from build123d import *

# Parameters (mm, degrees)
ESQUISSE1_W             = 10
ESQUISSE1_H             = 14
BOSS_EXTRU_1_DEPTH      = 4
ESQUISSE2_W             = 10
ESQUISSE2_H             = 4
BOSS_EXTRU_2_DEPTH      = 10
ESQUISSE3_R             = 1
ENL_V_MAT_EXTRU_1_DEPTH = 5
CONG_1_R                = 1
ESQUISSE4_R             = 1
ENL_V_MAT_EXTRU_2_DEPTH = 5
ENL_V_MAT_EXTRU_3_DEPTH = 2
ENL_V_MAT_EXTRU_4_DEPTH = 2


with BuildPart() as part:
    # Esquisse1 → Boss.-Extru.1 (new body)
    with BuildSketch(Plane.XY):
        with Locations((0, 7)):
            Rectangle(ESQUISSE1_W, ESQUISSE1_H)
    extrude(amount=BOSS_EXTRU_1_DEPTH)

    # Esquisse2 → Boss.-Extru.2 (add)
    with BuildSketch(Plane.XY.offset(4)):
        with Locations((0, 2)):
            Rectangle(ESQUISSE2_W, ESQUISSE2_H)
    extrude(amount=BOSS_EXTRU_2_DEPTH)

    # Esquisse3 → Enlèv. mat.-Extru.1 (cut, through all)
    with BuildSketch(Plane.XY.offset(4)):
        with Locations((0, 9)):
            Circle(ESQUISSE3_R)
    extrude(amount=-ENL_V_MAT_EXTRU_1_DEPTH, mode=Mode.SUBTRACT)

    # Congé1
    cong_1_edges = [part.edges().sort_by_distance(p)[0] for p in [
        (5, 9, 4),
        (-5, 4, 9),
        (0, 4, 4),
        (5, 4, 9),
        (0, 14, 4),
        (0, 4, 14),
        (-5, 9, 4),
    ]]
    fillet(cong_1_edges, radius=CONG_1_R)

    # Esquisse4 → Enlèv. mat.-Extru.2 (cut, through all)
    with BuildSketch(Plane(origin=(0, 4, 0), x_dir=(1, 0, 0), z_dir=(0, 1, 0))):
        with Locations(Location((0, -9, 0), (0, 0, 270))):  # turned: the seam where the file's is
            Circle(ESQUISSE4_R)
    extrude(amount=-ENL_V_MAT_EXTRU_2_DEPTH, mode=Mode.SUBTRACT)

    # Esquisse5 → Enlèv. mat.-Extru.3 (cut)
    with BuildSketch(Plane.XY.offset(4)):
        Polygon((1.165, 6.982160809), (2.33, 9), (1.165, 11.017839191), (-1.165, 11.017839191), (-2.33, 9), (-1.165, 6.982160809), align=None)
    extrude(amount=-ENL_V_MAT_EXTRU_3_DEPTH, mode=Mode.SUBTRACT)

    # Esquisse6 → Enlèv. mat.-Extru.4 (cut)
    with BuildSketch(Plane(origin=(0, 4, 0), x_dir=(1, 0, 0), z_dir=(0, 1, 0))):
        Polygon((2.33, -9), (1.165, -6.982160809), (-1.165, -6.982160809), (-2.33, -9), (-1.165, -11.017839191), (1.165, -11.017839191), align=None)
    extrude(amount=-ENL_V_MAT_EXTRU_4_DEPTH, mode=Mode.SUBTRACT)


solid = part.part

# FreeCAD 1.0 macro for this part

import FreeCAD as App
import Part
import Sketcher
from FreeCAD import Vector
Q = App.Units.Quantity


def edges_at(feature, points):
    """Names of the edges that pass closest to the given points."""
    edges = feature.Shape.Edges
    near = lambda p: min(range(len(edges)), key=lambda i: edges[i].distToShape(Part.Vertex(*p))[0])
    return sorted({f"Edge{near(p) + 1}" for p in points})

doc = App.newDocument("Part")
body = doc.addObject("PartDesign::Body", "Body")

# Sketch on XY plane
sketch1 = doc.addObject("Sketcher::SketchObject", "Sketch")
body.addObject(sketch1)
sketch1.AttachmentSupport = (doc.XY_Plane, [""])
sketch1.MapMode = "FlatFace"
sketch1.addGeometry(Part.LineSegment(Vector(-5, 14, 0), Vector(-5, 0, 0)), False)
sketch1.addGeometry(Part.LineSegment(Vector(-5, 0, 0), Vector(5, 0, 0)), False)
sketch1.addGeometry(Part.LineSegment(Vector(5, 0, 0), Vector(5, 14, 0)), False)
sketch1.addGeometry(Part.LineSegment(Vector(5, 14, 0), Vector(-5, 14, 0)), False)
sketch1.addConstraint(Sketcher.Constraint("Coincident", 0, 2, 1, 1))
sketch1.addConstraint(Sketcher.Constraint("Coincident", 1, 2, 2, 1))
sketch1.addConstraint(Sketcher.Constraint("Coincident", 2, 2, 3, 1))
sketch1.addConstraint(Sketcher.Constraint("Coincident", 3, 2, 0, 1))
sketch1.addConstraint(Sketcher.Constraint("Vertical", 0))
sketch1.addConstraint(Sketcher.Constraint("Horizontal", 1))
sketch1.addConstraint(Sketcher.Constraint("Vertical", 2))
sketch1.addConstraint(Sketcher.Constraint("Horizontal", 3))
sketch1.addConstraint(Sketcher.Constraint("Symmetric", 0, 2, 1, 2, -1, 1))
sketch1.addConstraint(Sketcher.Constraint("DistanceX", 1, 1, 1, 2, Q("10 mm")))
sketch1.addConstraint(Sketcher.Constraint("DistanceY", 0, 2, 0, 1, Q("14 mm")))
pad1 = doc.addObject("PartDesign::Pad", "Pad")
body.addObject(pad1)
pad1.Profile = sketch1
pad1.Length = 4

# Sketch on XY plane
sketch2 = doc.addObject("Sketcher::SketchObject", "Sketch001")
body.addObject(sketch2)
sketch2.AttachmentSupport = (doc.XY_Plane, [""])
sketch2.MapMode = "FlatFace"
sketch2.AttachmentOffset = App.Placement(Vector(0, 0, 4), App.Rotation())
sketch2.addGeometry(Part.LineSegment(Vector(-5, 4, 0), Vector(-5, 0, 0)), False)
sketch2.addGeometry(Part.LineSegment(Vector(-5, 0, 0), Vector(5, 0, 0)), False)
sketch2.addGeometry(Part.LineSegment(Vector(5, 0, 0), Vector(5, 4, 0)), False)
sketch2.addGeometry(Part.LineSegment(Vector(5, 4, 0), Vector(-5, 4, 0)), False)
sketch2.addConstraint(Sketcher.Constraint("Coincident", 0, 2, 1, 1))
sketch2.addConstraint(Sketcher.Constraint("Coincident", 1, 2, 2, 1))
sketch2.addConstraint(Sketcher.Constraint("Coincident", 2, 2, 3, 1))
sketch2.addConstraint(Sketcher.Constraint("Coincident", 3, 2, 0, 1))
sketch2.addConstraint(Sketcher.Constraint("Vertical", 0))
sketch2.addConstraint(Sketcher.Constraint("Horizontal", 1))
sketch2.addConstraint(Sketcher.Constraint("Vertical", 2))
sketch2.addConstraint(Sketcher.Constraint("Horizontal", 3))
sketch2.addConstraint(Sketcher.Constraint("Symmetric", 0, 2, 1, 2, -1, 1))
sketch2.addConstraint(Sketcher.Constraint("DistanceX", 1, 1, 1, 2, Q("10 mm")))
sketch2.addConstraint(Sketcher.Constraint("DistanceY", 0, 2, 0, 1, Q("4 mm")))
pad2 = doc.addObject("PartDesign::Pad", "Pad001")
body.addObject(pad2)
pad2.Profile = sketch2
pad2.Length = 10

# Sketch on XY plane
sketch3 = doc.addObject("Sketcher::SketchObject", "Sketch002")
body.addObject(sketch3)
sketch3.AttachmentSupport = (doc.XY_Plane, [""])
sketch3.MapMode = "FlatFace"
sketch3.AttachmentOffset = App.Placement(Vector(0, 0, 4), App.Rotation())
sketch3.addGeometry(Part.Circle(Vector(0, 9, 0), Vector(0, 0, 1), 1), False)
sketch3.addConstraint(Sketcher.Constraint("PointOnObject", 0, 3, -2))
sketch3.addConstraint(Sketcher.Constraint("Diameter", 0, Q("2 mm")))
sketch3.addConstraint(Sketcher.Constraint("DistanceY", -1, 1, 0, 3, Q("9 mm")))
pocket1 = doc.addObject("PartDesign::Pocket", "Pocket")
body.addObject(pocket1)
pocket1.Profile = sketch3
pocket1.Type = "ThroughAll"
doc.recompute()

fillet = doc.addObject("PartDesign::Fillet", "Fillet")
body.addObject(fillet)
fillet.Base = (pocket1, edges_at(pocket1, [
    (5, 9, 4),
    (-5, 4, 9),
    (0, 4, 4),
    (5, 4, 9),
    (0, 14, 4),
    (0, 4, 14),
    (-5, 9, 4),
]))
fillet.Radius = 1

# Sketch on XZ plane
sketch4 = doc.addObject("Sketcher::SketchObject", "Sketch003")
body.addObject(sketch4)
sketch4.AttachmentSupport = (doc.XZ_Plane, [""])
sketch4.MapMode = "FlatFace"
sketch4.AttachmentOffset = App.Placement(Vector(0, 0, -4), App.Rotation())
sketch4.addGeometry(Part.Circle(Vector(0, 9, 0), Vector(0, 0, 1), 1), False)
sketch4.addConstraint(Sketcher.Constraint("PointOnObject", 0, 3, -2))
sketch4.addConstraint(Sketcher.Constraint("Diameter", 0, Q("2 mm")))
sketch4.addConstraint(Sketcher.Constraint("DistanceY", -1, 1, 0, 3, Q("9 mm")))
pocket2 = doc.addObject("PartDesign::Pocket", "Pocket001")
body.addObject(pocket2)
pocket2.Profile = sketch4
pocket2.Type = "ThroughAll"
pocket2.Reversed = True

# Sketch on XY plane
sketch5 = doc.addObject("Sketcher::SketchObject", "Sketch004")
body.addObject(sketch5)
sketch5.AttachmentSupport = (doc.XY_Plane, [""])
sketch5.MapMode = "FlatFace"
sketch5.AttachmentOffset = App.Placement(Vector(0, 0, 4), App.Rotation())
sketch5.addGeometry(Part.LineSegment(Vector(1.2, 7, 0), Vector(2.3, 9, 0)), False)
sketch5.addGeometry(Part.LineSegment(Vector(2.3, 9, 0), Vector(1.2, 11, 0)), False)
sketch5.addGeometry(Part.LineSegment(Vector(1.2, 11, 0), Vector(-1.2, 11, 0)), False)
sketch5.addGeometry(Part.LineSegment(Vector(-1.2, 11, 0), Vector(-2.3, 9, 0)), False)
sketch5.addGeometry(Part.LineSegment(Vector(-2.3, 9, 0), Vector(-1.2, 7, 0)), False)
sketch5.addGeometry(Part.LineSegment(Vector(-1.2, 7, 0), Vector(1.2, 7, 0)), False)
sketch5.addConstraint(Sketcher.Constraint("Coincident", 0, 2, 1, 1))
sketch5.addConstraint(Sketcher.Constraint("Coincident", 1, 2, 2, 1))
sketch5.addConstraint(Sketcher.Constraint("Coincident", 2, 2, 3, 1))
sketch5.addConstraint(Sketcher.Constraint("Coincident", 3, 2, 4, 1))
sketch5.addConstraint(Sketcher.Constraint("Coincident", 4, 2, 5, 1))
sketch5.addConstraint(Sketcher.Constraint("Coincident", 5, 2, 0, 1))
sketch5.addConstraint(Sketcher.Constraint("Horizontal", 2))
sketch5.addConstraint(Sketcher.Constraint("Horizontal", 5))
sketch5.addConstraint(Sketcher.Constraint("Symmetric", 0, 2, 3, 2, -2))
sketch5.addConstraint(Sketcher.Constraint("Parallel", 0, 3))
sketch5.addConstraint(Sketcher.Constraint("Parallel", 1, 4))
sketch5.addConstraint(Sketcher.Constraint("Vertical", 2, 2, 4, 2))
sketch5.addConstraint(Sketcher.Constraint("Vertical", 1, 2, 5, 2))
sketch5.addConstraint(Sketcher.Constraint("Angle", 0, Q("60 deg")))
sketch5.addConstraint(Sketcher.Constraint("DistanceY", -1, 1, 0, 2, Q("9 mm")))
sketch5.addConstraint(Sketcher.Constraint("DistanceX", 2, 2, 2, 1, Q("2.33 mm")))
sketch5.addConstraint(Sketcher.Constraint("Distance", 0, Q("2.33 mm")))
pocket3 = doc.addObject("PartDesign::Pocket", "Pocket002")
body.addObject(pocket3)
pocket3.Profile = sketch5
pocket3.Length = 2

# Sketch on XZ plane
sketch6 = doc.addObject("Sketcher::SketchObject", "Sketch005")
body.addObject(sketch6)
sketch6.AttachmentSupport = (doc.XZ_Plane, [""])
sketch6.MapMode = "FlatFace"
sketch6.AttachmentOffset = App.Placement(Vector(0, 0, -4), App.Rotation())
sketch6.addGeometry(Part.LineSegment(Vector(2.3, 9, 0), Vector(1.2, 7, 0)), False)
sketch6.addGeometry(Part.LineSegment(Vector(1.2, 7, 0), Vector(-1.2, 7, 0)), False)
sketch6.addGeometry(Part.LineSegment(Vector(-1.2, 7, 0), Vector(-2.3, 9, 0)), False)
sketch6.addGeometry(Part.LineSegment(Vector(-2.3, 9, 0), Vector(-1.2, 11, 0)), False)
sketch6.addGeometry(Part.LineSegment(Vector(-1.2, 11, 0), Vector(1.2, 11, 0)), False)
sketch6.addGeometry(Part.LineSegment(Vector(1.2, 11, 0), Vector(2.3, 9, 0)), False)
sketch6.addConstraint(Sketcher.Constraint("Coincident", 0, 2, 1, 1))
sketch6.addConstraint(Sketcher.Constraint("Coincident", 1, 2, 2, 1))
sketch6.addConstraint(Sketcher.Constraint("Coincident", 2, 2, 3, 1))
sketch6.addConstraint(Sketcher.Constraint("Coincident", 3, 2, 4, 1))
sketch6.addConstraint(Sketcher.Constraint("Coincident", 4, 2, 5, 1))
sketch6.addConstraint(Sketcher.Constraint("Coincident", 5, 2, 0, 1))
sketch6.addConstraint(Sketcher.Constraint("Horizontal", 1))
sketch6.addConstraint(Sketcher.Constraint("Horizontal", 4))
sketch6.addConstraint(Sketcher.Constraint("Symmetric", 2, 2, 5, 2, -2))
sketch6.addConstraint(Sketcher.Constraint("Parallel", 0, 3))
sketch6.addConstraint(Sketcher.Constraint("Parallel", 2, 5))
sketch6.addConstraint(Sketcher.Constraint("Vertical", 1, 2, 3, 2))
sketch6.addConstraint(Sketcher.Constraint("Vertical", 0, 2, 4, 2))
sketch6.addConstraint(Sketcher.Constraint("Angle", 0, Q("-120 deg")))
sketch6.addConstraint(Sketcher.Constraint("DistanceY", -1, 1, 2, 2, Q("9 mm")))
sketch6.addConstraint(Sketcher.Constraint("DistanceX", 1, 2, 1, 1, Q("2.33 mm")))
sketch6.addConstraint(Sketcher.Constraint("Distance", 0, Q("2.33 mm")))
pocket4 = doc.addObject("PartDesign::Pocket", "Pocket003")
body.addObject(pocket4)
pocket4.Profile = sketch6
pocket4.Length = 2
pocket4.Reversed = True

doc.recompute()
